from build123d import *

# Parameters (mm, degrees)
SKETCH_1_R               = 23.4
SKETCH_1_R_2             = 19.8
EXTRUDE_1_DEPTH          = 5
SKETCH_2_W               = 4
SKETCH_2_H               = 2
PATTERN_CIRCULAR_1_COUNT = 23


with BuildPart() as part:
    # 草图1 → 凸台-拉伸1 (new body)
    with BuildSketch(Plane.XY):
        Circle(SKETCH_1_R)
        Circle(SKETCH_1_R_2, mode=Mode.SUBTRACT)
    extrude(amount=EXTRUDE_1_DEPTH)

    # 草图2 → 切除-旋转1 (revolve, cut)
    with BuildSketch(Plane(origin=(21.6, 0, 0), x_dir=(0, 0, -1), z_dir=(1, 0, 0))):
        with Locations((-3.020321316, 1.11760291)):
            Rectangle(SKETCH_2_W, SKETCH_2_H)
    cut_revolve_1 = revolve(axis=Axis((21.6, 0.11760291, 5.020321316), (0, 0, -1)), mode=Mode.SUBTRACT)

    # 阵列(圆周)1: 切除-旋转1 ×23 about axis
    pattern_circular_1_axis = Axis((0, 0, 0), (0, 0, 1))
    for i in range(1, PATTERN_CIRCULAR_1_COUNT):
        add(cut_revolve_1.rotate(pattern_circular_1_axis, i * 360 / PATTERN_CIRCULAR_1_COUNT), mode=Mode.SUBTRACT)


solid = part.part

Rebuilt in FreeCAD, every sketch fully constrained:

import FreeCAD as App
import Part
import Sketcher
from FreeCAD import Vector
Q = App.Units.Quantity


def add_polygon(sketch, points):
    """Adds a closed chain of lines whose ends are joined by coincident constraints."""
    first, n = sketch.GeometryCount, len(points)
    for a, b in zip(points, points[1:] + points[:1]):
        sketch.addGeometry(Part.LineSegment(App.Vector(*a, 0), App.Vector(*b, 0)), False)
    for i in range(n):
        sketch.addConstraint(Sketcher.Constraint("Coincident", first + i, 2, first + (i + 1) % n, 1))

doc = App.newDocument("Part")
params = doc.addObject("Spreadsheet::Sheet", "Params")
for row, (alias, value) in enumerate([
    ("sketch1_diameter", "46.8 mm"),
    ("sketch1_diameter2", "39.6 mm"),
    ("pad1_length", "5 mm"),
    ("sketch2_width", "2 mm"),
    ("sketch2_height", "4 mm"),
    ("groove_angle", "360 deg"),
], start=1):
    params.set(f"A{row}", alias)
    params.set(f"B{row}", "=" + value)
    params.setAlias(f"B{row}", alias)

body = doc.addObject("PartDesign::Body", "Body")

sketch1 = body.newObject("Sketcher::SketchObject", "Sketch")
sketch1.AttachmentSupport = (doc.getObject("XY_Plane"), [""])
sketch1.MapMode = "FlatFace"
sketch1.addGeometry([
    Part.Circle(Vector(0, 0, 0), Vector(0, 0, 1), 23),
    Part.Circle(Vector(0, 0, 0), Vector(0, 0, 1), 20),
], False)
sketch1.addConstraint([
    Sketcher.Constraint("Coincident", 0, 3, -1, 1),
    Sketcher.Constraint("Coincident", 1, 3, -1, 1),
    Sketcher.Constraint("Diameter", 0, Q("46.8 mm")),
    Sketcher.Constraint("Diameter", 1, Q("39.6 mm")),
])
sketch1.setExpression("Constraints[2]", "Params.sketch1_diameter")
sketch1.setExpression("Constraints[3]", "Params.sketch1_diameter2")
pad1 = body.newObject("PartDesign::Pad", "Pad")
pad1.Profile = sketch1
pad1.setExpression("Length", "Params.pad1_length")

sketch2 = body.newObject("Sketcher::SketchObject", "Sketch001")
sketch2.AttachmentSupport = (doc.getObject("YZ_Plane"), [""])
sketch2.MapMode = "FlatFace"
sketch2.AttachmentOffset = App.Placement(Vector(0, 0, 21.6), App.Rotation())
add_polygon(sketch2, [(2.1, 5), (0.1, 5), (0.1, 1), (2.1, 1)])
sketch2.addGeometry(Part.LineSegment(Vector(0.1, 5, 0), Vector(0.1, 1, 0)), True)
sketch2.addConstraint([
    Sketcher.Constraint("Horizontal", 0),
    Sketcher.Constraint("Vertical", 1),
    Sketcher.Constraint("Horizontal", 2),
    Sketcher.Constraint("Vertical", 3),
    Sketcher.Constraint("Vertical", 4),
    Sketcher.Constraint("Coincident", 4, 1, 0, 2),
    Sketcher.Constraint("Horizontal", 2, 2, 4, 2),
    Sketcher.Constraint("DistanceX", 0, 2, 0, 1, Q("2 mm")),
    Sketcher.Constraint("DistanceY", 1, 2, 1, 1, Q("4 mm")),
    Sketcher.Constraint("DistanceY", -1, 1, 0, 2, Q("5.020321 mm")),
    Sketcher.Constraint("DistanceX", -1, 1, 0, 2, Q("0.117603 mm")),
])
sketch2.setExpression("Constraints[11]", "Params.sketch2_width")
sketch2.setExpression("Constraints[12]", "Params.sketch2_height")
groove = body.newObject("PartDesign::Groove", "Groove")
groove.Profile = sketch2
groove.ReferenceAxis = (sketch2, ["Axis0"])
groove.setExpression("Angle", "Params.groove_angle")
doc.recompute()

polarpattern = body.newObject("PartDesign::PolarPattern", "PolarPattern")
polarpattern.Originals = [groove]
polarpattern.Axis = (doc.getObject("Z_Axis"), [""])
polarpattern.Angle = 360
polarpattern.Occurrences = 23
body.Tip = polarpattern

doc.recompute()
